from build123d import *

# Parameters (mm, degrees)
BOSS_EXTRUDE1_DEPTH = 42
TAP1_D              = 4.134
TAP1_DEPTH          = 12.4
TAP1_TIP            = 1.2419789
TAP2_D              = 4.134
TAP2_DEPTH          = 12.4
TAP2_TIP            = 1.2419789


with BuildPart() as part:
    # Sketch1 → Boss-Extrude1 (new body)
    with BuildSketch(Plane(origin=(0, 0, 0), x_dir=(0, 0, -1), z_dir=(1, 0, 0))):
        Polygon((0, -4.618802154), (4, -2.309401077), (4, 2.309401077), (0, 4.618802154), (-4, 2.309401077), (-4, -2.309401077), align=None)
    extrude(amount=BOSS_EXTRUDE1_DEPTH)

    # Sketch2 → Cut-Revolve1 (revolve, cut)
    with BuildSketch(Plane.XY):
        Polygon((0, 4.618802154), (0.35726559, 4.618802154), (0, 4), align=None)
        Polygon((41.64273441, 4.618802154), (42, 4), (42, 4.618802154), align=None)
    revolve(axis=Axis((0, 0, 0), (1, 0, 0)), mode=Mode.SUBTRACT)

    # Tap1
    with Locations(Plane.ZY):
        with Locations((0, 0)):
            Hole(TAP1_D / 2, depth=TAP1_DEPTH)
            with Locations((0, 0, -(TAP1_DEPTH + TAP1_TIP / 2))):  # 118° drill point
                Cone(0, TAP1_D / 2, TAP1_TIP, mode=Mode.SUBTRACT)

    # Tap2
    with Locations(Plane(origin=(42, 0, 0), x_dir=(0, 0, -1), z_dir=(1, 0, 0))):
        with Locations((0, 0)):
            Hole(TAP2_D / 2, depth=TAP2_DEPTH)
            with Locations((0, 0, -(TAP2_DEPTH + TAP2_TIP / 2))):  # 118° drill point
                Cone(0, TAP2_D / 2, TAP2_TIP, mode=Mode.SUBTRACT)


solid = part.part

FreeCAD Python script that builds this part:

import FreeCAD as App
import Part
import Sketcher
Q = App.Units.Quantity

doc = App.newDocument("Part")
body = doc.addObject("PartDesign::Body", "Body")

# Sketch on YZ plane
sketch1 = body.newObject("Sketcher::SketchObject", "Sketch")
sketch1.AttachmentSupport = (doc.getObject("YZ_Plane"), [""])
sketch1.MapMode = "FlatFace"
sketch1.addGeometry(Part.LineSegment(App.Vector(-4.618802, 0, 0), App.Vector(-2.309401, -4, 0)), False)
sketch1.addGeometry(Part.LineSegment(App.Vector(-2.309401, -4, 0), App.Vector(2.309401, -4, 0)), False)
sketch1.addGeometry(Part.LineSegment(App.Vector(2.309401, -4, 0), App.Vector(4.618802, 0, 0)), False)
sketch1.addGeometry(Part.LineSegment(App.Vector(4.618802, 0, 0), App.Vector(2.309401, 4, 0)), False)
sketch1.addGeometry(Part.LineSegment(App.Vector(2.309401, 4, 0), App.Vector(-2.309401, 4, 0)), False)
sketch1.addGeometry(Part.LineSegment(App.Vector(-2.309401, 4, 0), App.Vector(-4.618802, 0, 0)), False)
sketch1.addConstraint(Sketcher.Constraint("Coincident", 0, 2, 1, 1))
sketch1.addConstraint(Sketcher.Constraint("Coincident", 1, 2, 2, 1))
sketch1.addConstraint(Sketcher.Constraint("Coincident", 2, 2, 3, 1))
sketch1.addConstraint(Sketcher.Constraint("Coincident", 3, 2, 4, 1))
sketch1.addConstraint(Sketcher.Constraint("Coincident", 4, 2, 5, 1))
sketch1.addConstraint(Sketcher.Constraint("Coincident", 5, 2, 0, 1))
sketch1.addConstraint(Sketcher.Constraint("Horizontal", 1))
sketch1.addConstraint(Sketcher.Constraint("Horizontal", 4))
sketch1.addConstraint(Sketcher.Constraint("Symmetric", 0, 2, 3, 2, -1, 1))
sketch1.addConstraint(Sketcher.Constraint("Symmetric", 2, 2, 5, 2, -1, 1))
sketch1.addConstraint(Sketcher.Constraint("PointOnObject", 2, 2, -1))
sketch1.addConstraint(Sketcher.Constraint("Parallel", 2, 5))
sketch1.addConstraint(Sketcher.Constraint("Vertical", 1, 2, 3, 2))
sketch1.addConstraint(Sketcher.Constraint("Angle", 0, Q("-60 deg")))
sketch1.addConstraint(Sketcher.Constraint("DistanceY", 0, 2, -1, 1, 4.0))
sketch1.addConstraint(Sketcher.Constraint("DistanceX", 0, 2, -1, 1, 2.309401))
pad1 = body.newObject("PartDesign::Pad", "Pad")
pad1.Profile = sketch1
pad1.Length = 42

# Sketch on XY plane
sketch2 = body.newObject("Sketcher::SketchObject", "Sketch001")
sketch2.AttachmentSupport = (doc.getObject("XY_Plane"), [""])
sketch2.MapMode = "FlatFace"
sketch2.addGeometry(Part.LineSegment(App.Vector(0.357266, 4.618802, 0), App.Vector(0, 4.618802, 0)), False)
sketch2.addGeometry(Part.LineSegment(App.Vector(0, 4.618802, 0), App.Vector(0, 4, 0)), False)
sketch2.addGeometry(Part.LineSegment(App.Vector(0, 4, 0), App.Vector(0.357266, 4.618802, 0)), False)
sketch2.addGeometry(Part.LineSegment(App.Vector(41.642734, 4.618802, 0), App.Vector(42, 4, 0)), False)
sketch2.addGeometry(Part.LineSegment(App.Vector(42, 4, 0), App.Vector(42, 4.618802, 0)), False)
sketch2.addGeometry(Part.LineSegment(App.Vector(42, 4.618802, 0), App.Vector(41.642734, 4.618802, 0)), False)
sketch2.addConstraint(Sketcher.Constraint("Coincident", 0, 2, 1, 1))
sketch2.addConstraint(Sketcher.Constraint("Coincident", 1, 2, 2, 1))
sketch2.addConstraint(Sketcher.Constraint("Coincident", 2, 2, 0, 1))
sketch2.addConstraint(Sketcher.Constraint("Coincident", 3, 2, 4, 1))
sketch2.addConstraint(Sketcher.Constraint("Coincident", 4, 2, 5, 1))
sketch2.addConstraint(Sketcher.Constraint("Coincident", 5, 2, 3, 1))
sketch2.addConstraint(Sketcher.Constraint("Horizontal", 0))
sketch2.addConstraint(Sketcher.Constraint("Vertical", 1))
sketch2.addConstraint(Sketcher.Constraint("Vertical", 4))
sketch2.addConstraint(Sketcher.Constraint("Horizontal", 5))
sketch2.addConstraint(Sketcher.Constraint("PointOnObject", 0, 2, -2))
sketch2.addConstraint(Sketcher.Constraint("Horizontal", 1, 2, 3, 2))
sketch2.addConstraint(Sketcher.Constraint("Horizontal", 2, 2, 4, 2))
sketch2.addConstraint(Sketcher.Constraint("Equal", 0, 5))
sketch2.addConstraint(Sketcher.Constraint("Angle", 2, Q("60 deg")))
sketch2.addConstraint(Sketcher.Constraint("DistanceY", -1, 1, 1, 2, 4.0))
sketch2.addConstraint(Sketcher.Constraint("DistanceX", -1, 1, 3, 2, 42.0))
sketch2.addConstraint(Sketcher.Constraint("Distance", 2, 0.714531))
groove = body.newObject("PartDesign::Groove", "Groove")
groove.Profile = sketch2
groove.ReferenceAxis = (sketch2, ["H_Axis"])
groove.Angle = 360

# Sketch on YZ plane
sketch3 = body.newObject("Sketcher::SketchObject", "Sketch002")
sketch3.AttachmentSupport = (doc.getObject("YZ_Plane"), [""])
sketch3.MapMode = "FlatFace"
sketch3.addGeometry(Part.Circle(App.Vector(0, 0, 0), App.Vector(0, 0, 1), 2.067), False)
sketch3.addConstraint(Sketcher.Constraint("Coincident", 0, 3, -1, 1))
sketch3.addConstraint(Sketcher.Constraint("Diameter", 0, 4.134))
doc.recompute()
hole = body.newObject("PartDesign::Hole", "Hole")
hole.Profile = sketch3
hole.ThreadType = "None"
hole.Diameter = 4.134
hole.DepthType = "Dimension"
hole.Depth = 12.4
hole.DrillPoint = "Angled"
hole.DrillPointAngle = 118
hole.Reversed = True

# Sketch on YZ plane
sketch4 = body.newObject("Sketcher::SketchObject", "Sketch003")
sketch4.AttachmentSupport = (doc.getObject("YZ_Plane"), [""])
sketch4.MapMode = "FlatFace"
sketch4.AttachmentOffset = App.Placement(App.Vector(0, 0, 42), App.Rotation())
sketch4.addGeometry(Part.Circle(App.Vector(0, 0, 0), App.Vector(0, 0, 1), 2.067), False)
sketch4.addConstraint(Sketcher.Constraint("Coincident", 0, 3, -1, 1))
sketch4.addConstraint(Sketcher.Constraint("Diameter", 0, 4.134))
doc.recompute()
hole2 = body.newObject("PartDesign::Hole", "Hole001")
hole2.Profile = sketch4
hole2.ThreadType = "None"
hole2.Diameter = 4.134
hole2.DepthType = "Dimension"
hole2.Depth = 12.4
hole2.DrillPoint = "Angled"
hole2.DrillPointAngle = 118

doc.recompute()
